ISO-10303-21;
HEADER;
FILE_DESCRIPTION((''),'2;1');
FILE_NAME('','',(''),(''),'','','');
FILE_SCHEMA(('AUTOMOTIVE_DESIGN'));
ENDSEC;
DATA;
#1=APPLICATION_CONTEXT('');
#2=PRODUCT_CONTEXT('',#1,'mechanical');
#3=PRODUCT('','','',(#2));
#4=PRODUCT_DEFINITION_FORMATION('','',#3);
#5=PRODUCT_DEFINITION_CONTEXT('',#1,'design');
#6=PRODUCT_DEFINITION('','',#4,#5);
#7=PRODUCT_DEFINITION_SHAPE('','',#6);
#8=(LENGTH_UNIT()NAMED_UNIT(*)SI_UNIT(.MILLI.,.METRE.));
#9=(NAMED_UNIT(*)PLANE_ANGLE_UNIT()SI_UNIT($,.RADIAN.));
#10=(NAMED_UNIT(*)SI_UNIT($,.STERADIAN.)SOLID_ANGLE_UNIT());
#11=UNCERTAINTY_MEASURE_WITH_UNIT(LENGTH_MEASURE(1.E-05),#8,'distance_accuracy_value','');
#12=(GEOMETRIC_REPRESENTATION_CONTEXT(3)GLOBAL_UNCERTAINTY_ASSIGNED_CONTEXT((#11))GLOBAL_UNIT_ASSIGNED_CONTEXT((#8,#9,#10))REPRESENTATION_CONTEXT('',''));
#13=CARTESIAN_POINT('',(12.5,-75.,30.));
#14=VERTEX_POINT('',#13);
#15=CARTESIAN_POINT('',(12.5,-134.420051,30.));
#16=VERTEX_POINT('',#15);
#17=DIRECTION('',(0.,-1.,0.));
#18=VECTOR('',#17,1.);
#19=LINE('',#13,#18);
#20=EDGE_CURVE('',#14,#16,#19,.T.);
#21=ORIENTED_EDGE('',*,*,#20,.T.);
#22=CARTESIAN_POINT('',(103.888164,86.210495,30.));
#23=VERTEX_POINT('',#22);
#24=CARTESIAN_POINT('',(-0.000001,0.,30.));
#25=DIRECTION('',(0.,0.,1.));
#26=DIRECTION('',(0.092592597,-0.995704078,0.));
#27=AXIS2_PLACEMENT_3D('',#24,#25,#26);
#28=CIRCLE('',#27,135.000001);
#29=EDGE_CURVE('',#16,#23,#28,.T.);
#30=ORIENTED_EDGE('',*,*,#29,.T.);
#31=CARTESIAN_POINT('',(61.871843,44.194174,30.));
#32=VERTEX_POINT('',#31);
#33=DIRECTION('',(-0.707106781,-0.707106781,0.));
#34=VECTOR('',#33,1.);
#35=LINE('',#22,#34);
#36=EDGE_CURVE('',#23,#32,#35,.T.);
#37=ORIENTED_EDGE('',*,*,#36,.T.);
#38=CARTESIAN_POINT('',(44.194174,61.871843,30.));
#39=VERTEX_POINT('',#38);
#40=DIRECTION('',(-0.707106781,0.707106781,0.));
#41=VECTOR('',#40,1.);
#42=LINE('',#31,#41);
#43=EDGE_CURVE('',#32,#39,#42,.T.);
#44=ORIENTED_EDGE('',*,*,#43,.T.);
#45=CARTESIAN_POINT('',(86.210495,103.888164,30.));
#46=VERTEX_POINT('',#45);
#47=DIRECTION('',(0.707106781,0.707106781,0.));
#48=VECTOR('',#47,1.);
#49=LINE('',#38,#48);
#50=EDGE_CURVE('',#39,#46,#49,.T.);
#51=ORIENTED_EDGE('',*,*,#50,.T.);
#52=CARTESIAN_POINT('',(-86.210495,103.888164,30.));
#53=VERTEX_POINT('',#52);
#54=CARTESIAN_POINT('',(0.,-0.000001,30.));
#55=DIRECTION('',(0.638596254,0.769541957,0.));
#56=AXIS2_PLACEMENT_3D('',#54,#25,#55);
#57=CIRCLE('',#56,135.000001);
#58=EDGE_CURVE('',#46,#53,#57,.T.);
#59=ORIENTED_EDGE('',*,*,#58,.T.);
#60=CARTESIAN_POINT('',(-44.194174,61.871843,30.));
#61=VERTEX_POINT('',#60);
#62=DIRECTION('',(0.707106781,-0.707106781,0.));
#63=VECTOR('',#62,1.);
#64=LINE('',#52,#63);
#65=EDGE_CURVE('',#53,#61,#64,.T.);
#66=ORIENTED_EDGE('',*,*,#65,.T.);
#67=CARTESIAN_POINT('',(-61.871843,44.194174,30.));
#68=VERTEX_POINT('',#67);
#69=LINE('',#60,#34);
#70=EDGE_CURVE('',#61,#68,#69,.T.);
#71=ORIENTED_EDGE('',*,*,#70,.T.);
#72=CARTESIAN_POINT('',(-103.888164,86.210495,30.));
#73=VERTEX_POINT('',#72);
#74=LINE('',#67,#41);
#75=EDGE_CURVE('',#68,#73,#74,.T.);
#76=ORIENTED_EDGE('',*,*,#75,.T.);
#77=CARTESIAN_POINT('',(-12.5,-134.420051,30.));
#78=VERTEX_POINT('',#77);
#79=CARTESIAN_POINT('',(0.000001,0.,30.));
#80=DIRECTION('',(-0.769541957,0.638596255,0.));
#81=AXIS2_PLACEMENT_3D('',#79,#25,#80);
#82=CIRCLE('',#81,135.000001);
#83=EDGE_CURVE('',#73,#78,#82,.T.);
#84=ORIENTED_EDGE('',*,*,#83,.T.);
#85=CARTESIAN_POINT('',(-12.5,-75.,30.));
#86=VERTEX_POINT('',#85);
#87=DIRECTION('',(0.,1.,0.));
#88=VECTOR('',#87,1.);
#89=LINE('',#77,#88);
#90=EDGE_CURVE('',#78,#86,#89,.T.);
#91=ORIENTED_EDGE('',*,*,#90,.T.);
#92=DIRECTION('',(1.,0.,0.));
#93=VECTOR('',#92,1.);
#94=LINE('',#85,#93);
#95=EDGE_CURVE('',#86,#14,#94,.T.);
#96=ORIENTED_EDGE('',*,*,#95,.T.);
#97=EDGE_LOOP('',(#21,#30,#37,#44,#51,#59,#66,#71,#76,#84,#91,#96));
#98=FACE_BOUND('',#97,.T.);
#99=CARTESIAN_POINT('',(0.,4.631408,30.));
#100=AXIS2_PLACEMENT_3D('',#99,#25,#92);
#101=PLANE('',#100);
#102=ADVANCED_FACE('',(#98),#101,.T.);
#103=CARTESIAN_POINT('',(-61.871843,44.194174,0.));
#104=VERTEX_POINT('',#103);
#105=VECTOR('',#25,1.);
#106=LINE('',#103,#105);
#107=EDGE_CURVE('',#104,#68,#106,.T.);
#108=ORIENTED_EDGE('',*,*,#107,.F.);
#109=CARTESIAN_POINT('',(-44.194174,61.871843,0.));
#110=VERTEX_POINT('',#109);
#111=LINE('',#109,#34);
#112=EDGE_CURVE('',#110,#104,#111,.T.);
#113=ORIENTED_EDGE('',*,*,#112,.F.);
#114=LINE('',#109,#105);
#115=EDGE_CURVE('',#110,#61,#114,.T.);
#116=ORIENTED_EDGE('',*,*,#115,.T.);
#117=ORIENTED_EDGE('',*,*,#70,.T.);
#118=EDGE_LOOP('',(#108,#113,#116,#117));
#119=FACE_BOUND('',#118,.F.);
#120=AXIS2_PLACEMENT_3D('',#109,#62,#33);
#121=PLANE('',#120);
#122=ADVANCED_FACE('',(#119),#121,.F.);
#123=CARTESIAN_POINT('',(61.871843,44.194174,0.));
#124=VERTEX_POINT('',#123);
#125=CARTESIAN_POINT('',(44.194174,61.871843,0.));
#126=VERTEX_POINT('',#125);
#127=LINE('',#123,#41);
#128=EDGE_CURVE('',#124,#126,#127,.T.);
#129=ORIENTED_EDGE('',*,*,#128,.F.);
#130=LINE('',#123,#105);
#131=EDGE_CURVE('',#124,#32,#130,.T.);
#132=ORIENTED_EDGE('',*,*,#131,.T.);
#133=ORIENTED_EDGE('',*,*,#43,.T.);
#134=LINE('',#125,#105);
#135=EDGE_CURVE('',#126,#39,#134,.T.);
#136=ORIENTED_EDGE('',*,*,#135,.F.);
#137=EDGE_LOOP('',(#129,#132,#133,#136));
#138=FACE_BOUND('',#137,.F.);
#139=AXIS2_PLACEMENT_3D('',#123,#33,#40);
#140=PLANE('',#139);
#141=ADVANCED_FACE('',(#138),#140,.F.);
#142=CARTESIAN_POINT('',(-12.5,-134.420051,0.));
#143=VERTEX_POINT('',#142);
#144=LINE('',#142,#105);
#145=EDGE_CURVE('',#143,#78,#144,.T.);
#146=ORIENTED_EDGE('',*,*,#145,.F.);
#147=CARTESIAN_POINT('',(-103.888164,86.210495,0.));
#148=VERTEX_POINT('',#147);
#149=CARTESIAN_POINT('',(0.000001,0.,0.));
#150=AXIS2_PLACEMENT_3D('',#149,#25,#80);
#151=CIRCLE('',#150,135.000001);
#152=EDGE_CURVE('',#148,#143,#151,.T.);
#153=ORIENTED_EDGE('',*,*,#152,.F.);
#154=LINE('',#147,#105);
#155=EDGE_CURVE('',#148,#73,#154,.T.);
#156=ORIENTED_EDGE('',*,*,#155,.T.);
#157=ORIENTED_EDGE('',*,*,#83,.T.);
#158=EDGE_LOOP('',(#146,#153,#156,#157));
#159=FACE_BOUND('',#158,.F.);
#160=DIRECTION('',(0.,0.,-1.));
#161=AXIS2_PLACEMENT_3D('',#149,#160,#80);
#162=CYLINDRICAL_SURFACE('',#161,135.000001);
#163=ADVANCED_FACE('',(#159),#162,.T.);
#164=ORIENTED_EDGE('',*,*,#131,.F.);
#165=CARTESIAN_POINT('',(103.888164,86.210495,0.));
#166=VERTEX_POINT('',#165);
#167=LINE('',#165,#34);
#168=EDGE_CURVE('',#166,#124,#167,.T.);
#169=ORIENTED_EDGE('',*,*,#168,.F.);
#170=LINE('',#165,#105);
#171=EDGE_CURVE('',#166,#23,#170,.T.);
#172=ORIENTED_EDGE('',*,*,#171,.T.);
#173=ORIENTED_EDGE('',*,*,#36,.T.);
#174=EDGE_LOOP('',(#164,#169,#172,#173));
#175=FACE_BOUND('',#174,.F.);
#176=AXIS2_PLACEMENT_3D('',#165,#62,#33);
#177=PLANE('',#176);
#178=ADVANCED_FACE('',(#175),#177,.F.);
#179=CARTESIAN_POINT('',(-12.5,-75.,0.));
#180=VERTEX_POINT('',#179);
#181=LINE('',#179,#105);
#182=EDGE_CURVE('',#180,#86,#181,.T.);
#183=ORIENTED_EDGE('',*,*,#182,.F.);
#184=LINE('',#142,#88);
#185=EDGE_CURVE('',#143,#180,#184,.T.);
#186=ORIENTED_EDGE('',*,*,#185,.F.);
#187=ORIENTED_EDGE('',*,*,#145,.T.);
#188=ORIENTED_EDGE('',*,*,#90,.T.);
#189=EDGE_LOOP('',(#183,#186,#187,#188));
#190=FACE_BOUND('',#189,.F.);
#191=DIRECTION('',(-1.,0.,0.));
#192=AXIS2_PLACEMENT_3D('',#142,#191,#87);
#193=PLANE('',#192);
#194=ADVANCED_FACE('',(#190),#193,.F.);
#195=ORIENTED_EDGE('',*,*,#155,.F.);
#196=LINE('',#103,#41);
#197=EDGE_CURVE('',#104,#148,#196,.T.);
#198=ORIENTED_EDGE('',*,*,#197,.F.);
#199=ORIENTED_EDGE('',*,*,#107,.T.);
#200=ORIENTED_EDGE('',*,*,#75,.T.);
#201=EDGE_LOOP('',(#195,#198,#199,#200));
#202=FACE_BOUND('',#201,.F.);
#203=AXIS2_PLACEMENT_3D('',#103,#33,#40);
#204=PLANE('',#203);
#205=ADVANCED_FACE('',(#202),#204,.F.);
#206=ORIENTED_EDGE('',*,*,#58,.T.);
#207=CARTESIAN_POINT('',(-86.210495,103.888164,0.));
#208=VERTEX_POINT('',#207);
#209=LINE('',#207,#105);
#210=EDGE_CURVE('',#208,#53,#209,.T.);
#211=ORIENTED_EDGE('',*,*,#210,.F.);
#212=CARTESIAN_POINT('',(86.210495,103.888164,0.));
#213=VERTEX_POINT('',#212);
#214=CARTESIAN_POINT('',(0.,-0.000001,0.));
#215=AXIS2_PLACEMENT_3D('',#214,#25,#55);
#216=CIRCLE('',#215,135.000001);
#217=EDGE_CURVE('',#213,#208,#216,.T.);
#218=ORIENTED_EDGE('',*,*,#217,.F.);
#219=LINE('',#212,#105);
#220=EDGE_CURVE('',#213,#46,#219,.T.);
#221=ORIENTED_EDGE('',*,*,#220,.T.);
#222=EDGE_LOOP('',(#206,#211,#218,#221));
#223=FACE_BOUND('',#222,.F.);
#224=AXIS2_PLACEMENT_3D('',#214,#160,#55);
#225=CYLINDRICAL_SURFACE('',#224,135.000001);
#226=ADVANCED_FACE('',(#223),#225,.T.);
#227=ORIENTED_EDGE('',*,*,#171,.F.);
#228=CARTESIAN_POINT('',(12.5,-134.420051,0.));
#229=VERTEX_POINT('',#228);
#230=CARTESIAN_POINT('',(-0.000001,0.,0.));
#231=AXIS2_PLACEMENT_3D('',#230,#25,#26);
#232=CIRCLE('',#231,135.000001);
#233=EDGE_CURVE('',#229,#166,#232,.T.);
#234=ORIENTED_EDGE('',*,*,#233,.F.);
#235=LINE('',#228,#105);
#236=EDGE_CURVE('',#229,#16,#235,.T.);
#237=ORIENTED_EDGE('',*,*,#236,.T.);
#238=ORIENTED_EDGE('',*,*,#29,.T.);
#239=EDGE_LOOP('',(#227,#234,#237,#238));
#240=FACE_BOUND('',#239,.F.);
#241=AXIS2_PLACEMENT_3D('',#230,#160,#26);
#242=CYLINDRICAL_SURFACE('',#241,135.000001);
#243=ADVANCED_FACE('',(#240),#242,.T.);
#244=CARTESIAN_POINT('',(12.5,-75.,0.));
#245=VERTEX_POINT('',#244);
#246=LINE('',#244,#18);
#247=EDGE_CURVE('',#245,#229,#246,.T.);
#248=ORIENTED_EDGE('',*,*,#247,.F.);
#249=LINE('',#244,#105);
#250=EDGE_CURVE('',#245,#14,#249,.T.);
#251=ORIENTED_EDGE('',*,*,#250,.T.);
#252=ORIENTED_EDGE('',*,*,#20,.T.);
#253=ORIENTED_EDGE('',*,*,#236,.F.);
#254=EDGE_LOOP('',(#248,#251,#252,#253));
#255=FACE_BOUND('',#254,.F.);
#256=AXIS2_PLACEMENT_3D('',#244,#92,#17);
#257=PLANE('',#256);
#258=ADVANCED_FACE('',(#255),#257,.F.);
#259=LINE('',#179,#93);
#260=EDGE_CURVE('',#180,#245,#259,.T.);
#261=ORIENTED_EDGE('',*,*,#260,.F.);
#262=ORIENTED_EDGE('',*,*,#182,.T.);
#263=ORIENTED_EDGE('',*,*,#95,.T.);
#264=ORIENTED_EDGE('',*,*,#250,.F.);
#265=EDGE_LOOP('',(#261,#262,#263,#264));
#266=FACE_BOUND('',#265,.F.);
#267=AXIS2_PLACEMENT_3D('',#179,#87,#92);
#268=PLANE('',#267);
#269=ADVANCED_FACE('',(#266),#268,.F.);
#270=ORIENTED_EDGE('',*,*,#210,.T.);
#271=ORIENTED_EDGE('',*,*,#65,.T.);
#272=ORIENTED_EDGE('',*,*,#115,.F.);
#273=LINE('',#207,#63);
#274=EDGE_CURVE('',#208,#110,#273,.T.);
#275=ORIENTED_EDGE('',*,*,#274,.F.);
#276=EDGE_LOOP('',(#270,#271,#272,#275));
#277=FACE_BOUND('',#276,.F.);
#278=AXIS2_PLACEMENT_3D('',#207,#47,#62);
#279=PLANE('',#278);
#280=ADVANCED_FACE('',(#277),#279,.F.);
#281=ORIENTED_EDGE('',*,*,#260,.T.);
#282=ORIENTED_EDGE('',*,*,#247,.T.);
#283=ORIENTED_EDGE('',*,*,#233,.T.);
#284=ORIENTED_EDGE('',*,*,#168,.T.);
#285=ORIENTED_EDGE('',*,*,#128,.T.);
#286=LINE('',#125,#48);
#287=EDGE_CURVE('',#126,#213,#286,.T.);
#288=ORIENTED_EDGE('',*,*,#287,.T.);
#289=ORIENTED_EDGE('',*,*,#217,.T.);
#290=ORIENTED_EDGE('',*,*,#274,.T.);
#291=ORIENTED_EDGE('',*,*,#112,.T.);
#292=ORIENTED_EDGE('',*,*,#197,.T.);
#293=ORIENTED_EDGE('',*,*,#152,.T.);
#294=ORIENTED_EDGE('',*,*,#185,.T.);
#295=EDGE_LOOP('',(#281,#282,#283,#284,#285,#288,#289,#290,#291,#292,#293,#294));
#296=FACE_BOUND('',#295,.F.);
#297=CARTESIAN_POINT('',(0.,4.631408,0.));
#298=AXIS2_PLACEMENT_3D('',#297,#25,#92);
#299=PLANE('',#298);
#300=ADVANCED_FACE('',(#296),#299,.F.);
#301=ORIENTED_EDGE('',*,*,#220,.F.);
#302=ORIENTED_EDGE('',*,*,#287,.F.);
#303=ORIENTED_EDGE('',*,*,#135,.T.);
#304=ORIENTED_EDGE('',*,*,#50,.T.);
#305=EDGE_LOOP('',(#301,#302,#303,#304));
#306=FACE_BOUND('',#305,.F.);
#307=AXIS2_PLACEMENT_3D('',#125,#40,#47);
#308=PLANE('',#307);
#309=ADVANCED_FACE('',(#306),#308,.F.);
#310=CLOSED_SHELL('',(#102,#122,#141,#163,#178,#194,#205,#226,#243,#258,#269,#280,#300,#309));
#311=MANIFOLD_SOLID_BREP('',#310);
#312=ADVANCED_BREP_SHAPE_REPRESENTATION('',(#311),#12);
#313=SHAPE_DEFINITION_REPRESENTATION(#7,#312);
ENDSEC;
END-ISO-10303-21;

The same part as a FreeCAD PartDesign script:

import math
import FreeCAD as App
import Part
import Sketcher
from FreeCAD import Vector

doc = App.newDocument("Part")
body = doc.addObject("PartDesign::Body", "Body")

# Sketch on XY plane
sketch1 = doc.addObject("Sketcher::SketchObject", "Sketch")
body.addObject(sketch1)
sketch1.AttachmentSupport = (doc.XY_Plane, [""])
sketch1.MapMode = "FlatFace"
sketch1.addGeometry([
    Part.LineSegment(Vector(103.888164, 86.210495, 0), Vector(61.871843, 44.194174, 0)),  # 0
    Part.LineSegment(Vector(61.871843, 44.194174, 0), Vector(44.194174, 61.871843, 0)),  # 1
    Part.LineSegment(Vector(44.194174, 61.871843, 0), Vector(86.210495, 103.888164, 0)),  # 2
    Part.ArcOfCircle(Part.Circle(Vector(0, -0.000001, 0), Vector(0, 0, 1), 135.000001), math.radians(50.312775), math.radians(129.687225)),  # 3
    Part.LineSegment(Vector(-86.210495, 103.888164, 0), Vector(-44.194174, 61.871843, 0)),  # 4
    Part.LineSegment(Vector(-44.194174, 61.871843, 0), Vector(-61.871843, 44.194174, 0)),  # 5
    Part.LineSegment(Vector(-61.871843, 44.194174, 0), Vector(-103.888164, 86.210495, 0)),  # 6
    Part.ArcOfCircle(Part.Circle(Vector(0.000001, 0, 0), Vector(0, 0, 1), 135.000001), math.radians(140.312775), math.radians(264.687225)),  # 7
    Part.LineSegment(Vector(-12.5, -134.420051, 0), Vector(-12.5, -75, 0)),  # 8
    Part.LineSegment(Vector(-12.5, -75, 0), Vector(12.5, -75, 0)),  # 9
    Part.LineSegment(Vector(12.5, -75, 0), Vector(12.5, -134.420051, 0)),  # 10
    Part.ArcOfCircle(Part.Circle(Vector(-0.000001, 0, 0), Vector(0, 0, 1), 135.000001), math.radians(-84.687225), math.radians(39.687225)),  # 11
], False)
sketch1.addConstraint([
    Sketcher.Constraint("Coincident", 0, 2, 1, 1),
    Sketcher.Constraint("Coincident", 1, 2, 2, 1),
    Sketcher.Constraint("Coincident", 2, 2, 3, 1),
    Sketcher.Constraint("Coincident", 3, 2, 4, 1),
    Sketcher.Constraint("Coincident", 4, 2, 5, 1),
    Sketcher.Constraint("Coincident", 5, 2, 6, 1),
    Sketcher.Constraint("Coincident", 6, 2, 7, 1),
    Sketcher.Constraint("Coincident", 7, 2, 8, 1),
    Sketcher.Constraint("Coincident", 8, 2, 9, 1),
    Sketcher.Constraint("Coincident", 9, 2, 10, 1),
    Sketcher.Constraint("Coincident", 10, 2, 11, 1),
    Sketcher.Constraint("Coincident", 11, 2, 0, 1),
    Sketcher.Constraint("Vertical", 8),
    Sketcher.Constraint("Horizontal", 9),
    Sketcher.Constraint("Vertical", 10),
    Sketcher.Constraint("Coincident", 3, 3, -1, 1),
    Sketcher.Constraint("Coincident", 7, 3, -1, 1),
    Sketcher.Constraint("Coincident", 11, 3, -1, 1),
    Sketcher.Constraint("Equal", 3, 7),
    Sketcher.Constraint("Equal", 7, 11),
    Sketcher.Constraint("Symmetric", 1, 2, 4, 2, -2),
    Sketcher.Constraint("Symmetric", 0, 2, 5, 2, -2),
    Sketcher.Constraint("Perpendicular", 0, 1),
    Sketcher.Constraint("Perpendicular", 1, 2),
    Sketcher.Constraint("Perpendicular", 2, 4),
    Sketcher.Constraint("Perpendicular", 4, 5),
    Sketcher.Constraint("Perpendicular", 5, 6),
    Sketcher.Constraint("Horizontal", 7, 2, 10, 2),
    Sketcher.Constraint("Equal", 0, 2),
    Sketcher.Constraint("Radius", 3, 135.000001),
    Sketcher.Constraint("DistanceX", 9, 1, 9, 2, 25.0),
    Sketcher.Constraint("Distance", 1, 24.999999),
    Sketcher.Constraint("DistanceY", 8, 2, -1, 1, 75.0),
    Sketcher.Constraint("Distance", 0, 59.420051),
])
pad1 = doc.addObject("PartDesign::Pad", "Pad")
body.addObject(pad1)
pad1.Profile = sketch1
pad1.Length = 30

doc.recompute()
